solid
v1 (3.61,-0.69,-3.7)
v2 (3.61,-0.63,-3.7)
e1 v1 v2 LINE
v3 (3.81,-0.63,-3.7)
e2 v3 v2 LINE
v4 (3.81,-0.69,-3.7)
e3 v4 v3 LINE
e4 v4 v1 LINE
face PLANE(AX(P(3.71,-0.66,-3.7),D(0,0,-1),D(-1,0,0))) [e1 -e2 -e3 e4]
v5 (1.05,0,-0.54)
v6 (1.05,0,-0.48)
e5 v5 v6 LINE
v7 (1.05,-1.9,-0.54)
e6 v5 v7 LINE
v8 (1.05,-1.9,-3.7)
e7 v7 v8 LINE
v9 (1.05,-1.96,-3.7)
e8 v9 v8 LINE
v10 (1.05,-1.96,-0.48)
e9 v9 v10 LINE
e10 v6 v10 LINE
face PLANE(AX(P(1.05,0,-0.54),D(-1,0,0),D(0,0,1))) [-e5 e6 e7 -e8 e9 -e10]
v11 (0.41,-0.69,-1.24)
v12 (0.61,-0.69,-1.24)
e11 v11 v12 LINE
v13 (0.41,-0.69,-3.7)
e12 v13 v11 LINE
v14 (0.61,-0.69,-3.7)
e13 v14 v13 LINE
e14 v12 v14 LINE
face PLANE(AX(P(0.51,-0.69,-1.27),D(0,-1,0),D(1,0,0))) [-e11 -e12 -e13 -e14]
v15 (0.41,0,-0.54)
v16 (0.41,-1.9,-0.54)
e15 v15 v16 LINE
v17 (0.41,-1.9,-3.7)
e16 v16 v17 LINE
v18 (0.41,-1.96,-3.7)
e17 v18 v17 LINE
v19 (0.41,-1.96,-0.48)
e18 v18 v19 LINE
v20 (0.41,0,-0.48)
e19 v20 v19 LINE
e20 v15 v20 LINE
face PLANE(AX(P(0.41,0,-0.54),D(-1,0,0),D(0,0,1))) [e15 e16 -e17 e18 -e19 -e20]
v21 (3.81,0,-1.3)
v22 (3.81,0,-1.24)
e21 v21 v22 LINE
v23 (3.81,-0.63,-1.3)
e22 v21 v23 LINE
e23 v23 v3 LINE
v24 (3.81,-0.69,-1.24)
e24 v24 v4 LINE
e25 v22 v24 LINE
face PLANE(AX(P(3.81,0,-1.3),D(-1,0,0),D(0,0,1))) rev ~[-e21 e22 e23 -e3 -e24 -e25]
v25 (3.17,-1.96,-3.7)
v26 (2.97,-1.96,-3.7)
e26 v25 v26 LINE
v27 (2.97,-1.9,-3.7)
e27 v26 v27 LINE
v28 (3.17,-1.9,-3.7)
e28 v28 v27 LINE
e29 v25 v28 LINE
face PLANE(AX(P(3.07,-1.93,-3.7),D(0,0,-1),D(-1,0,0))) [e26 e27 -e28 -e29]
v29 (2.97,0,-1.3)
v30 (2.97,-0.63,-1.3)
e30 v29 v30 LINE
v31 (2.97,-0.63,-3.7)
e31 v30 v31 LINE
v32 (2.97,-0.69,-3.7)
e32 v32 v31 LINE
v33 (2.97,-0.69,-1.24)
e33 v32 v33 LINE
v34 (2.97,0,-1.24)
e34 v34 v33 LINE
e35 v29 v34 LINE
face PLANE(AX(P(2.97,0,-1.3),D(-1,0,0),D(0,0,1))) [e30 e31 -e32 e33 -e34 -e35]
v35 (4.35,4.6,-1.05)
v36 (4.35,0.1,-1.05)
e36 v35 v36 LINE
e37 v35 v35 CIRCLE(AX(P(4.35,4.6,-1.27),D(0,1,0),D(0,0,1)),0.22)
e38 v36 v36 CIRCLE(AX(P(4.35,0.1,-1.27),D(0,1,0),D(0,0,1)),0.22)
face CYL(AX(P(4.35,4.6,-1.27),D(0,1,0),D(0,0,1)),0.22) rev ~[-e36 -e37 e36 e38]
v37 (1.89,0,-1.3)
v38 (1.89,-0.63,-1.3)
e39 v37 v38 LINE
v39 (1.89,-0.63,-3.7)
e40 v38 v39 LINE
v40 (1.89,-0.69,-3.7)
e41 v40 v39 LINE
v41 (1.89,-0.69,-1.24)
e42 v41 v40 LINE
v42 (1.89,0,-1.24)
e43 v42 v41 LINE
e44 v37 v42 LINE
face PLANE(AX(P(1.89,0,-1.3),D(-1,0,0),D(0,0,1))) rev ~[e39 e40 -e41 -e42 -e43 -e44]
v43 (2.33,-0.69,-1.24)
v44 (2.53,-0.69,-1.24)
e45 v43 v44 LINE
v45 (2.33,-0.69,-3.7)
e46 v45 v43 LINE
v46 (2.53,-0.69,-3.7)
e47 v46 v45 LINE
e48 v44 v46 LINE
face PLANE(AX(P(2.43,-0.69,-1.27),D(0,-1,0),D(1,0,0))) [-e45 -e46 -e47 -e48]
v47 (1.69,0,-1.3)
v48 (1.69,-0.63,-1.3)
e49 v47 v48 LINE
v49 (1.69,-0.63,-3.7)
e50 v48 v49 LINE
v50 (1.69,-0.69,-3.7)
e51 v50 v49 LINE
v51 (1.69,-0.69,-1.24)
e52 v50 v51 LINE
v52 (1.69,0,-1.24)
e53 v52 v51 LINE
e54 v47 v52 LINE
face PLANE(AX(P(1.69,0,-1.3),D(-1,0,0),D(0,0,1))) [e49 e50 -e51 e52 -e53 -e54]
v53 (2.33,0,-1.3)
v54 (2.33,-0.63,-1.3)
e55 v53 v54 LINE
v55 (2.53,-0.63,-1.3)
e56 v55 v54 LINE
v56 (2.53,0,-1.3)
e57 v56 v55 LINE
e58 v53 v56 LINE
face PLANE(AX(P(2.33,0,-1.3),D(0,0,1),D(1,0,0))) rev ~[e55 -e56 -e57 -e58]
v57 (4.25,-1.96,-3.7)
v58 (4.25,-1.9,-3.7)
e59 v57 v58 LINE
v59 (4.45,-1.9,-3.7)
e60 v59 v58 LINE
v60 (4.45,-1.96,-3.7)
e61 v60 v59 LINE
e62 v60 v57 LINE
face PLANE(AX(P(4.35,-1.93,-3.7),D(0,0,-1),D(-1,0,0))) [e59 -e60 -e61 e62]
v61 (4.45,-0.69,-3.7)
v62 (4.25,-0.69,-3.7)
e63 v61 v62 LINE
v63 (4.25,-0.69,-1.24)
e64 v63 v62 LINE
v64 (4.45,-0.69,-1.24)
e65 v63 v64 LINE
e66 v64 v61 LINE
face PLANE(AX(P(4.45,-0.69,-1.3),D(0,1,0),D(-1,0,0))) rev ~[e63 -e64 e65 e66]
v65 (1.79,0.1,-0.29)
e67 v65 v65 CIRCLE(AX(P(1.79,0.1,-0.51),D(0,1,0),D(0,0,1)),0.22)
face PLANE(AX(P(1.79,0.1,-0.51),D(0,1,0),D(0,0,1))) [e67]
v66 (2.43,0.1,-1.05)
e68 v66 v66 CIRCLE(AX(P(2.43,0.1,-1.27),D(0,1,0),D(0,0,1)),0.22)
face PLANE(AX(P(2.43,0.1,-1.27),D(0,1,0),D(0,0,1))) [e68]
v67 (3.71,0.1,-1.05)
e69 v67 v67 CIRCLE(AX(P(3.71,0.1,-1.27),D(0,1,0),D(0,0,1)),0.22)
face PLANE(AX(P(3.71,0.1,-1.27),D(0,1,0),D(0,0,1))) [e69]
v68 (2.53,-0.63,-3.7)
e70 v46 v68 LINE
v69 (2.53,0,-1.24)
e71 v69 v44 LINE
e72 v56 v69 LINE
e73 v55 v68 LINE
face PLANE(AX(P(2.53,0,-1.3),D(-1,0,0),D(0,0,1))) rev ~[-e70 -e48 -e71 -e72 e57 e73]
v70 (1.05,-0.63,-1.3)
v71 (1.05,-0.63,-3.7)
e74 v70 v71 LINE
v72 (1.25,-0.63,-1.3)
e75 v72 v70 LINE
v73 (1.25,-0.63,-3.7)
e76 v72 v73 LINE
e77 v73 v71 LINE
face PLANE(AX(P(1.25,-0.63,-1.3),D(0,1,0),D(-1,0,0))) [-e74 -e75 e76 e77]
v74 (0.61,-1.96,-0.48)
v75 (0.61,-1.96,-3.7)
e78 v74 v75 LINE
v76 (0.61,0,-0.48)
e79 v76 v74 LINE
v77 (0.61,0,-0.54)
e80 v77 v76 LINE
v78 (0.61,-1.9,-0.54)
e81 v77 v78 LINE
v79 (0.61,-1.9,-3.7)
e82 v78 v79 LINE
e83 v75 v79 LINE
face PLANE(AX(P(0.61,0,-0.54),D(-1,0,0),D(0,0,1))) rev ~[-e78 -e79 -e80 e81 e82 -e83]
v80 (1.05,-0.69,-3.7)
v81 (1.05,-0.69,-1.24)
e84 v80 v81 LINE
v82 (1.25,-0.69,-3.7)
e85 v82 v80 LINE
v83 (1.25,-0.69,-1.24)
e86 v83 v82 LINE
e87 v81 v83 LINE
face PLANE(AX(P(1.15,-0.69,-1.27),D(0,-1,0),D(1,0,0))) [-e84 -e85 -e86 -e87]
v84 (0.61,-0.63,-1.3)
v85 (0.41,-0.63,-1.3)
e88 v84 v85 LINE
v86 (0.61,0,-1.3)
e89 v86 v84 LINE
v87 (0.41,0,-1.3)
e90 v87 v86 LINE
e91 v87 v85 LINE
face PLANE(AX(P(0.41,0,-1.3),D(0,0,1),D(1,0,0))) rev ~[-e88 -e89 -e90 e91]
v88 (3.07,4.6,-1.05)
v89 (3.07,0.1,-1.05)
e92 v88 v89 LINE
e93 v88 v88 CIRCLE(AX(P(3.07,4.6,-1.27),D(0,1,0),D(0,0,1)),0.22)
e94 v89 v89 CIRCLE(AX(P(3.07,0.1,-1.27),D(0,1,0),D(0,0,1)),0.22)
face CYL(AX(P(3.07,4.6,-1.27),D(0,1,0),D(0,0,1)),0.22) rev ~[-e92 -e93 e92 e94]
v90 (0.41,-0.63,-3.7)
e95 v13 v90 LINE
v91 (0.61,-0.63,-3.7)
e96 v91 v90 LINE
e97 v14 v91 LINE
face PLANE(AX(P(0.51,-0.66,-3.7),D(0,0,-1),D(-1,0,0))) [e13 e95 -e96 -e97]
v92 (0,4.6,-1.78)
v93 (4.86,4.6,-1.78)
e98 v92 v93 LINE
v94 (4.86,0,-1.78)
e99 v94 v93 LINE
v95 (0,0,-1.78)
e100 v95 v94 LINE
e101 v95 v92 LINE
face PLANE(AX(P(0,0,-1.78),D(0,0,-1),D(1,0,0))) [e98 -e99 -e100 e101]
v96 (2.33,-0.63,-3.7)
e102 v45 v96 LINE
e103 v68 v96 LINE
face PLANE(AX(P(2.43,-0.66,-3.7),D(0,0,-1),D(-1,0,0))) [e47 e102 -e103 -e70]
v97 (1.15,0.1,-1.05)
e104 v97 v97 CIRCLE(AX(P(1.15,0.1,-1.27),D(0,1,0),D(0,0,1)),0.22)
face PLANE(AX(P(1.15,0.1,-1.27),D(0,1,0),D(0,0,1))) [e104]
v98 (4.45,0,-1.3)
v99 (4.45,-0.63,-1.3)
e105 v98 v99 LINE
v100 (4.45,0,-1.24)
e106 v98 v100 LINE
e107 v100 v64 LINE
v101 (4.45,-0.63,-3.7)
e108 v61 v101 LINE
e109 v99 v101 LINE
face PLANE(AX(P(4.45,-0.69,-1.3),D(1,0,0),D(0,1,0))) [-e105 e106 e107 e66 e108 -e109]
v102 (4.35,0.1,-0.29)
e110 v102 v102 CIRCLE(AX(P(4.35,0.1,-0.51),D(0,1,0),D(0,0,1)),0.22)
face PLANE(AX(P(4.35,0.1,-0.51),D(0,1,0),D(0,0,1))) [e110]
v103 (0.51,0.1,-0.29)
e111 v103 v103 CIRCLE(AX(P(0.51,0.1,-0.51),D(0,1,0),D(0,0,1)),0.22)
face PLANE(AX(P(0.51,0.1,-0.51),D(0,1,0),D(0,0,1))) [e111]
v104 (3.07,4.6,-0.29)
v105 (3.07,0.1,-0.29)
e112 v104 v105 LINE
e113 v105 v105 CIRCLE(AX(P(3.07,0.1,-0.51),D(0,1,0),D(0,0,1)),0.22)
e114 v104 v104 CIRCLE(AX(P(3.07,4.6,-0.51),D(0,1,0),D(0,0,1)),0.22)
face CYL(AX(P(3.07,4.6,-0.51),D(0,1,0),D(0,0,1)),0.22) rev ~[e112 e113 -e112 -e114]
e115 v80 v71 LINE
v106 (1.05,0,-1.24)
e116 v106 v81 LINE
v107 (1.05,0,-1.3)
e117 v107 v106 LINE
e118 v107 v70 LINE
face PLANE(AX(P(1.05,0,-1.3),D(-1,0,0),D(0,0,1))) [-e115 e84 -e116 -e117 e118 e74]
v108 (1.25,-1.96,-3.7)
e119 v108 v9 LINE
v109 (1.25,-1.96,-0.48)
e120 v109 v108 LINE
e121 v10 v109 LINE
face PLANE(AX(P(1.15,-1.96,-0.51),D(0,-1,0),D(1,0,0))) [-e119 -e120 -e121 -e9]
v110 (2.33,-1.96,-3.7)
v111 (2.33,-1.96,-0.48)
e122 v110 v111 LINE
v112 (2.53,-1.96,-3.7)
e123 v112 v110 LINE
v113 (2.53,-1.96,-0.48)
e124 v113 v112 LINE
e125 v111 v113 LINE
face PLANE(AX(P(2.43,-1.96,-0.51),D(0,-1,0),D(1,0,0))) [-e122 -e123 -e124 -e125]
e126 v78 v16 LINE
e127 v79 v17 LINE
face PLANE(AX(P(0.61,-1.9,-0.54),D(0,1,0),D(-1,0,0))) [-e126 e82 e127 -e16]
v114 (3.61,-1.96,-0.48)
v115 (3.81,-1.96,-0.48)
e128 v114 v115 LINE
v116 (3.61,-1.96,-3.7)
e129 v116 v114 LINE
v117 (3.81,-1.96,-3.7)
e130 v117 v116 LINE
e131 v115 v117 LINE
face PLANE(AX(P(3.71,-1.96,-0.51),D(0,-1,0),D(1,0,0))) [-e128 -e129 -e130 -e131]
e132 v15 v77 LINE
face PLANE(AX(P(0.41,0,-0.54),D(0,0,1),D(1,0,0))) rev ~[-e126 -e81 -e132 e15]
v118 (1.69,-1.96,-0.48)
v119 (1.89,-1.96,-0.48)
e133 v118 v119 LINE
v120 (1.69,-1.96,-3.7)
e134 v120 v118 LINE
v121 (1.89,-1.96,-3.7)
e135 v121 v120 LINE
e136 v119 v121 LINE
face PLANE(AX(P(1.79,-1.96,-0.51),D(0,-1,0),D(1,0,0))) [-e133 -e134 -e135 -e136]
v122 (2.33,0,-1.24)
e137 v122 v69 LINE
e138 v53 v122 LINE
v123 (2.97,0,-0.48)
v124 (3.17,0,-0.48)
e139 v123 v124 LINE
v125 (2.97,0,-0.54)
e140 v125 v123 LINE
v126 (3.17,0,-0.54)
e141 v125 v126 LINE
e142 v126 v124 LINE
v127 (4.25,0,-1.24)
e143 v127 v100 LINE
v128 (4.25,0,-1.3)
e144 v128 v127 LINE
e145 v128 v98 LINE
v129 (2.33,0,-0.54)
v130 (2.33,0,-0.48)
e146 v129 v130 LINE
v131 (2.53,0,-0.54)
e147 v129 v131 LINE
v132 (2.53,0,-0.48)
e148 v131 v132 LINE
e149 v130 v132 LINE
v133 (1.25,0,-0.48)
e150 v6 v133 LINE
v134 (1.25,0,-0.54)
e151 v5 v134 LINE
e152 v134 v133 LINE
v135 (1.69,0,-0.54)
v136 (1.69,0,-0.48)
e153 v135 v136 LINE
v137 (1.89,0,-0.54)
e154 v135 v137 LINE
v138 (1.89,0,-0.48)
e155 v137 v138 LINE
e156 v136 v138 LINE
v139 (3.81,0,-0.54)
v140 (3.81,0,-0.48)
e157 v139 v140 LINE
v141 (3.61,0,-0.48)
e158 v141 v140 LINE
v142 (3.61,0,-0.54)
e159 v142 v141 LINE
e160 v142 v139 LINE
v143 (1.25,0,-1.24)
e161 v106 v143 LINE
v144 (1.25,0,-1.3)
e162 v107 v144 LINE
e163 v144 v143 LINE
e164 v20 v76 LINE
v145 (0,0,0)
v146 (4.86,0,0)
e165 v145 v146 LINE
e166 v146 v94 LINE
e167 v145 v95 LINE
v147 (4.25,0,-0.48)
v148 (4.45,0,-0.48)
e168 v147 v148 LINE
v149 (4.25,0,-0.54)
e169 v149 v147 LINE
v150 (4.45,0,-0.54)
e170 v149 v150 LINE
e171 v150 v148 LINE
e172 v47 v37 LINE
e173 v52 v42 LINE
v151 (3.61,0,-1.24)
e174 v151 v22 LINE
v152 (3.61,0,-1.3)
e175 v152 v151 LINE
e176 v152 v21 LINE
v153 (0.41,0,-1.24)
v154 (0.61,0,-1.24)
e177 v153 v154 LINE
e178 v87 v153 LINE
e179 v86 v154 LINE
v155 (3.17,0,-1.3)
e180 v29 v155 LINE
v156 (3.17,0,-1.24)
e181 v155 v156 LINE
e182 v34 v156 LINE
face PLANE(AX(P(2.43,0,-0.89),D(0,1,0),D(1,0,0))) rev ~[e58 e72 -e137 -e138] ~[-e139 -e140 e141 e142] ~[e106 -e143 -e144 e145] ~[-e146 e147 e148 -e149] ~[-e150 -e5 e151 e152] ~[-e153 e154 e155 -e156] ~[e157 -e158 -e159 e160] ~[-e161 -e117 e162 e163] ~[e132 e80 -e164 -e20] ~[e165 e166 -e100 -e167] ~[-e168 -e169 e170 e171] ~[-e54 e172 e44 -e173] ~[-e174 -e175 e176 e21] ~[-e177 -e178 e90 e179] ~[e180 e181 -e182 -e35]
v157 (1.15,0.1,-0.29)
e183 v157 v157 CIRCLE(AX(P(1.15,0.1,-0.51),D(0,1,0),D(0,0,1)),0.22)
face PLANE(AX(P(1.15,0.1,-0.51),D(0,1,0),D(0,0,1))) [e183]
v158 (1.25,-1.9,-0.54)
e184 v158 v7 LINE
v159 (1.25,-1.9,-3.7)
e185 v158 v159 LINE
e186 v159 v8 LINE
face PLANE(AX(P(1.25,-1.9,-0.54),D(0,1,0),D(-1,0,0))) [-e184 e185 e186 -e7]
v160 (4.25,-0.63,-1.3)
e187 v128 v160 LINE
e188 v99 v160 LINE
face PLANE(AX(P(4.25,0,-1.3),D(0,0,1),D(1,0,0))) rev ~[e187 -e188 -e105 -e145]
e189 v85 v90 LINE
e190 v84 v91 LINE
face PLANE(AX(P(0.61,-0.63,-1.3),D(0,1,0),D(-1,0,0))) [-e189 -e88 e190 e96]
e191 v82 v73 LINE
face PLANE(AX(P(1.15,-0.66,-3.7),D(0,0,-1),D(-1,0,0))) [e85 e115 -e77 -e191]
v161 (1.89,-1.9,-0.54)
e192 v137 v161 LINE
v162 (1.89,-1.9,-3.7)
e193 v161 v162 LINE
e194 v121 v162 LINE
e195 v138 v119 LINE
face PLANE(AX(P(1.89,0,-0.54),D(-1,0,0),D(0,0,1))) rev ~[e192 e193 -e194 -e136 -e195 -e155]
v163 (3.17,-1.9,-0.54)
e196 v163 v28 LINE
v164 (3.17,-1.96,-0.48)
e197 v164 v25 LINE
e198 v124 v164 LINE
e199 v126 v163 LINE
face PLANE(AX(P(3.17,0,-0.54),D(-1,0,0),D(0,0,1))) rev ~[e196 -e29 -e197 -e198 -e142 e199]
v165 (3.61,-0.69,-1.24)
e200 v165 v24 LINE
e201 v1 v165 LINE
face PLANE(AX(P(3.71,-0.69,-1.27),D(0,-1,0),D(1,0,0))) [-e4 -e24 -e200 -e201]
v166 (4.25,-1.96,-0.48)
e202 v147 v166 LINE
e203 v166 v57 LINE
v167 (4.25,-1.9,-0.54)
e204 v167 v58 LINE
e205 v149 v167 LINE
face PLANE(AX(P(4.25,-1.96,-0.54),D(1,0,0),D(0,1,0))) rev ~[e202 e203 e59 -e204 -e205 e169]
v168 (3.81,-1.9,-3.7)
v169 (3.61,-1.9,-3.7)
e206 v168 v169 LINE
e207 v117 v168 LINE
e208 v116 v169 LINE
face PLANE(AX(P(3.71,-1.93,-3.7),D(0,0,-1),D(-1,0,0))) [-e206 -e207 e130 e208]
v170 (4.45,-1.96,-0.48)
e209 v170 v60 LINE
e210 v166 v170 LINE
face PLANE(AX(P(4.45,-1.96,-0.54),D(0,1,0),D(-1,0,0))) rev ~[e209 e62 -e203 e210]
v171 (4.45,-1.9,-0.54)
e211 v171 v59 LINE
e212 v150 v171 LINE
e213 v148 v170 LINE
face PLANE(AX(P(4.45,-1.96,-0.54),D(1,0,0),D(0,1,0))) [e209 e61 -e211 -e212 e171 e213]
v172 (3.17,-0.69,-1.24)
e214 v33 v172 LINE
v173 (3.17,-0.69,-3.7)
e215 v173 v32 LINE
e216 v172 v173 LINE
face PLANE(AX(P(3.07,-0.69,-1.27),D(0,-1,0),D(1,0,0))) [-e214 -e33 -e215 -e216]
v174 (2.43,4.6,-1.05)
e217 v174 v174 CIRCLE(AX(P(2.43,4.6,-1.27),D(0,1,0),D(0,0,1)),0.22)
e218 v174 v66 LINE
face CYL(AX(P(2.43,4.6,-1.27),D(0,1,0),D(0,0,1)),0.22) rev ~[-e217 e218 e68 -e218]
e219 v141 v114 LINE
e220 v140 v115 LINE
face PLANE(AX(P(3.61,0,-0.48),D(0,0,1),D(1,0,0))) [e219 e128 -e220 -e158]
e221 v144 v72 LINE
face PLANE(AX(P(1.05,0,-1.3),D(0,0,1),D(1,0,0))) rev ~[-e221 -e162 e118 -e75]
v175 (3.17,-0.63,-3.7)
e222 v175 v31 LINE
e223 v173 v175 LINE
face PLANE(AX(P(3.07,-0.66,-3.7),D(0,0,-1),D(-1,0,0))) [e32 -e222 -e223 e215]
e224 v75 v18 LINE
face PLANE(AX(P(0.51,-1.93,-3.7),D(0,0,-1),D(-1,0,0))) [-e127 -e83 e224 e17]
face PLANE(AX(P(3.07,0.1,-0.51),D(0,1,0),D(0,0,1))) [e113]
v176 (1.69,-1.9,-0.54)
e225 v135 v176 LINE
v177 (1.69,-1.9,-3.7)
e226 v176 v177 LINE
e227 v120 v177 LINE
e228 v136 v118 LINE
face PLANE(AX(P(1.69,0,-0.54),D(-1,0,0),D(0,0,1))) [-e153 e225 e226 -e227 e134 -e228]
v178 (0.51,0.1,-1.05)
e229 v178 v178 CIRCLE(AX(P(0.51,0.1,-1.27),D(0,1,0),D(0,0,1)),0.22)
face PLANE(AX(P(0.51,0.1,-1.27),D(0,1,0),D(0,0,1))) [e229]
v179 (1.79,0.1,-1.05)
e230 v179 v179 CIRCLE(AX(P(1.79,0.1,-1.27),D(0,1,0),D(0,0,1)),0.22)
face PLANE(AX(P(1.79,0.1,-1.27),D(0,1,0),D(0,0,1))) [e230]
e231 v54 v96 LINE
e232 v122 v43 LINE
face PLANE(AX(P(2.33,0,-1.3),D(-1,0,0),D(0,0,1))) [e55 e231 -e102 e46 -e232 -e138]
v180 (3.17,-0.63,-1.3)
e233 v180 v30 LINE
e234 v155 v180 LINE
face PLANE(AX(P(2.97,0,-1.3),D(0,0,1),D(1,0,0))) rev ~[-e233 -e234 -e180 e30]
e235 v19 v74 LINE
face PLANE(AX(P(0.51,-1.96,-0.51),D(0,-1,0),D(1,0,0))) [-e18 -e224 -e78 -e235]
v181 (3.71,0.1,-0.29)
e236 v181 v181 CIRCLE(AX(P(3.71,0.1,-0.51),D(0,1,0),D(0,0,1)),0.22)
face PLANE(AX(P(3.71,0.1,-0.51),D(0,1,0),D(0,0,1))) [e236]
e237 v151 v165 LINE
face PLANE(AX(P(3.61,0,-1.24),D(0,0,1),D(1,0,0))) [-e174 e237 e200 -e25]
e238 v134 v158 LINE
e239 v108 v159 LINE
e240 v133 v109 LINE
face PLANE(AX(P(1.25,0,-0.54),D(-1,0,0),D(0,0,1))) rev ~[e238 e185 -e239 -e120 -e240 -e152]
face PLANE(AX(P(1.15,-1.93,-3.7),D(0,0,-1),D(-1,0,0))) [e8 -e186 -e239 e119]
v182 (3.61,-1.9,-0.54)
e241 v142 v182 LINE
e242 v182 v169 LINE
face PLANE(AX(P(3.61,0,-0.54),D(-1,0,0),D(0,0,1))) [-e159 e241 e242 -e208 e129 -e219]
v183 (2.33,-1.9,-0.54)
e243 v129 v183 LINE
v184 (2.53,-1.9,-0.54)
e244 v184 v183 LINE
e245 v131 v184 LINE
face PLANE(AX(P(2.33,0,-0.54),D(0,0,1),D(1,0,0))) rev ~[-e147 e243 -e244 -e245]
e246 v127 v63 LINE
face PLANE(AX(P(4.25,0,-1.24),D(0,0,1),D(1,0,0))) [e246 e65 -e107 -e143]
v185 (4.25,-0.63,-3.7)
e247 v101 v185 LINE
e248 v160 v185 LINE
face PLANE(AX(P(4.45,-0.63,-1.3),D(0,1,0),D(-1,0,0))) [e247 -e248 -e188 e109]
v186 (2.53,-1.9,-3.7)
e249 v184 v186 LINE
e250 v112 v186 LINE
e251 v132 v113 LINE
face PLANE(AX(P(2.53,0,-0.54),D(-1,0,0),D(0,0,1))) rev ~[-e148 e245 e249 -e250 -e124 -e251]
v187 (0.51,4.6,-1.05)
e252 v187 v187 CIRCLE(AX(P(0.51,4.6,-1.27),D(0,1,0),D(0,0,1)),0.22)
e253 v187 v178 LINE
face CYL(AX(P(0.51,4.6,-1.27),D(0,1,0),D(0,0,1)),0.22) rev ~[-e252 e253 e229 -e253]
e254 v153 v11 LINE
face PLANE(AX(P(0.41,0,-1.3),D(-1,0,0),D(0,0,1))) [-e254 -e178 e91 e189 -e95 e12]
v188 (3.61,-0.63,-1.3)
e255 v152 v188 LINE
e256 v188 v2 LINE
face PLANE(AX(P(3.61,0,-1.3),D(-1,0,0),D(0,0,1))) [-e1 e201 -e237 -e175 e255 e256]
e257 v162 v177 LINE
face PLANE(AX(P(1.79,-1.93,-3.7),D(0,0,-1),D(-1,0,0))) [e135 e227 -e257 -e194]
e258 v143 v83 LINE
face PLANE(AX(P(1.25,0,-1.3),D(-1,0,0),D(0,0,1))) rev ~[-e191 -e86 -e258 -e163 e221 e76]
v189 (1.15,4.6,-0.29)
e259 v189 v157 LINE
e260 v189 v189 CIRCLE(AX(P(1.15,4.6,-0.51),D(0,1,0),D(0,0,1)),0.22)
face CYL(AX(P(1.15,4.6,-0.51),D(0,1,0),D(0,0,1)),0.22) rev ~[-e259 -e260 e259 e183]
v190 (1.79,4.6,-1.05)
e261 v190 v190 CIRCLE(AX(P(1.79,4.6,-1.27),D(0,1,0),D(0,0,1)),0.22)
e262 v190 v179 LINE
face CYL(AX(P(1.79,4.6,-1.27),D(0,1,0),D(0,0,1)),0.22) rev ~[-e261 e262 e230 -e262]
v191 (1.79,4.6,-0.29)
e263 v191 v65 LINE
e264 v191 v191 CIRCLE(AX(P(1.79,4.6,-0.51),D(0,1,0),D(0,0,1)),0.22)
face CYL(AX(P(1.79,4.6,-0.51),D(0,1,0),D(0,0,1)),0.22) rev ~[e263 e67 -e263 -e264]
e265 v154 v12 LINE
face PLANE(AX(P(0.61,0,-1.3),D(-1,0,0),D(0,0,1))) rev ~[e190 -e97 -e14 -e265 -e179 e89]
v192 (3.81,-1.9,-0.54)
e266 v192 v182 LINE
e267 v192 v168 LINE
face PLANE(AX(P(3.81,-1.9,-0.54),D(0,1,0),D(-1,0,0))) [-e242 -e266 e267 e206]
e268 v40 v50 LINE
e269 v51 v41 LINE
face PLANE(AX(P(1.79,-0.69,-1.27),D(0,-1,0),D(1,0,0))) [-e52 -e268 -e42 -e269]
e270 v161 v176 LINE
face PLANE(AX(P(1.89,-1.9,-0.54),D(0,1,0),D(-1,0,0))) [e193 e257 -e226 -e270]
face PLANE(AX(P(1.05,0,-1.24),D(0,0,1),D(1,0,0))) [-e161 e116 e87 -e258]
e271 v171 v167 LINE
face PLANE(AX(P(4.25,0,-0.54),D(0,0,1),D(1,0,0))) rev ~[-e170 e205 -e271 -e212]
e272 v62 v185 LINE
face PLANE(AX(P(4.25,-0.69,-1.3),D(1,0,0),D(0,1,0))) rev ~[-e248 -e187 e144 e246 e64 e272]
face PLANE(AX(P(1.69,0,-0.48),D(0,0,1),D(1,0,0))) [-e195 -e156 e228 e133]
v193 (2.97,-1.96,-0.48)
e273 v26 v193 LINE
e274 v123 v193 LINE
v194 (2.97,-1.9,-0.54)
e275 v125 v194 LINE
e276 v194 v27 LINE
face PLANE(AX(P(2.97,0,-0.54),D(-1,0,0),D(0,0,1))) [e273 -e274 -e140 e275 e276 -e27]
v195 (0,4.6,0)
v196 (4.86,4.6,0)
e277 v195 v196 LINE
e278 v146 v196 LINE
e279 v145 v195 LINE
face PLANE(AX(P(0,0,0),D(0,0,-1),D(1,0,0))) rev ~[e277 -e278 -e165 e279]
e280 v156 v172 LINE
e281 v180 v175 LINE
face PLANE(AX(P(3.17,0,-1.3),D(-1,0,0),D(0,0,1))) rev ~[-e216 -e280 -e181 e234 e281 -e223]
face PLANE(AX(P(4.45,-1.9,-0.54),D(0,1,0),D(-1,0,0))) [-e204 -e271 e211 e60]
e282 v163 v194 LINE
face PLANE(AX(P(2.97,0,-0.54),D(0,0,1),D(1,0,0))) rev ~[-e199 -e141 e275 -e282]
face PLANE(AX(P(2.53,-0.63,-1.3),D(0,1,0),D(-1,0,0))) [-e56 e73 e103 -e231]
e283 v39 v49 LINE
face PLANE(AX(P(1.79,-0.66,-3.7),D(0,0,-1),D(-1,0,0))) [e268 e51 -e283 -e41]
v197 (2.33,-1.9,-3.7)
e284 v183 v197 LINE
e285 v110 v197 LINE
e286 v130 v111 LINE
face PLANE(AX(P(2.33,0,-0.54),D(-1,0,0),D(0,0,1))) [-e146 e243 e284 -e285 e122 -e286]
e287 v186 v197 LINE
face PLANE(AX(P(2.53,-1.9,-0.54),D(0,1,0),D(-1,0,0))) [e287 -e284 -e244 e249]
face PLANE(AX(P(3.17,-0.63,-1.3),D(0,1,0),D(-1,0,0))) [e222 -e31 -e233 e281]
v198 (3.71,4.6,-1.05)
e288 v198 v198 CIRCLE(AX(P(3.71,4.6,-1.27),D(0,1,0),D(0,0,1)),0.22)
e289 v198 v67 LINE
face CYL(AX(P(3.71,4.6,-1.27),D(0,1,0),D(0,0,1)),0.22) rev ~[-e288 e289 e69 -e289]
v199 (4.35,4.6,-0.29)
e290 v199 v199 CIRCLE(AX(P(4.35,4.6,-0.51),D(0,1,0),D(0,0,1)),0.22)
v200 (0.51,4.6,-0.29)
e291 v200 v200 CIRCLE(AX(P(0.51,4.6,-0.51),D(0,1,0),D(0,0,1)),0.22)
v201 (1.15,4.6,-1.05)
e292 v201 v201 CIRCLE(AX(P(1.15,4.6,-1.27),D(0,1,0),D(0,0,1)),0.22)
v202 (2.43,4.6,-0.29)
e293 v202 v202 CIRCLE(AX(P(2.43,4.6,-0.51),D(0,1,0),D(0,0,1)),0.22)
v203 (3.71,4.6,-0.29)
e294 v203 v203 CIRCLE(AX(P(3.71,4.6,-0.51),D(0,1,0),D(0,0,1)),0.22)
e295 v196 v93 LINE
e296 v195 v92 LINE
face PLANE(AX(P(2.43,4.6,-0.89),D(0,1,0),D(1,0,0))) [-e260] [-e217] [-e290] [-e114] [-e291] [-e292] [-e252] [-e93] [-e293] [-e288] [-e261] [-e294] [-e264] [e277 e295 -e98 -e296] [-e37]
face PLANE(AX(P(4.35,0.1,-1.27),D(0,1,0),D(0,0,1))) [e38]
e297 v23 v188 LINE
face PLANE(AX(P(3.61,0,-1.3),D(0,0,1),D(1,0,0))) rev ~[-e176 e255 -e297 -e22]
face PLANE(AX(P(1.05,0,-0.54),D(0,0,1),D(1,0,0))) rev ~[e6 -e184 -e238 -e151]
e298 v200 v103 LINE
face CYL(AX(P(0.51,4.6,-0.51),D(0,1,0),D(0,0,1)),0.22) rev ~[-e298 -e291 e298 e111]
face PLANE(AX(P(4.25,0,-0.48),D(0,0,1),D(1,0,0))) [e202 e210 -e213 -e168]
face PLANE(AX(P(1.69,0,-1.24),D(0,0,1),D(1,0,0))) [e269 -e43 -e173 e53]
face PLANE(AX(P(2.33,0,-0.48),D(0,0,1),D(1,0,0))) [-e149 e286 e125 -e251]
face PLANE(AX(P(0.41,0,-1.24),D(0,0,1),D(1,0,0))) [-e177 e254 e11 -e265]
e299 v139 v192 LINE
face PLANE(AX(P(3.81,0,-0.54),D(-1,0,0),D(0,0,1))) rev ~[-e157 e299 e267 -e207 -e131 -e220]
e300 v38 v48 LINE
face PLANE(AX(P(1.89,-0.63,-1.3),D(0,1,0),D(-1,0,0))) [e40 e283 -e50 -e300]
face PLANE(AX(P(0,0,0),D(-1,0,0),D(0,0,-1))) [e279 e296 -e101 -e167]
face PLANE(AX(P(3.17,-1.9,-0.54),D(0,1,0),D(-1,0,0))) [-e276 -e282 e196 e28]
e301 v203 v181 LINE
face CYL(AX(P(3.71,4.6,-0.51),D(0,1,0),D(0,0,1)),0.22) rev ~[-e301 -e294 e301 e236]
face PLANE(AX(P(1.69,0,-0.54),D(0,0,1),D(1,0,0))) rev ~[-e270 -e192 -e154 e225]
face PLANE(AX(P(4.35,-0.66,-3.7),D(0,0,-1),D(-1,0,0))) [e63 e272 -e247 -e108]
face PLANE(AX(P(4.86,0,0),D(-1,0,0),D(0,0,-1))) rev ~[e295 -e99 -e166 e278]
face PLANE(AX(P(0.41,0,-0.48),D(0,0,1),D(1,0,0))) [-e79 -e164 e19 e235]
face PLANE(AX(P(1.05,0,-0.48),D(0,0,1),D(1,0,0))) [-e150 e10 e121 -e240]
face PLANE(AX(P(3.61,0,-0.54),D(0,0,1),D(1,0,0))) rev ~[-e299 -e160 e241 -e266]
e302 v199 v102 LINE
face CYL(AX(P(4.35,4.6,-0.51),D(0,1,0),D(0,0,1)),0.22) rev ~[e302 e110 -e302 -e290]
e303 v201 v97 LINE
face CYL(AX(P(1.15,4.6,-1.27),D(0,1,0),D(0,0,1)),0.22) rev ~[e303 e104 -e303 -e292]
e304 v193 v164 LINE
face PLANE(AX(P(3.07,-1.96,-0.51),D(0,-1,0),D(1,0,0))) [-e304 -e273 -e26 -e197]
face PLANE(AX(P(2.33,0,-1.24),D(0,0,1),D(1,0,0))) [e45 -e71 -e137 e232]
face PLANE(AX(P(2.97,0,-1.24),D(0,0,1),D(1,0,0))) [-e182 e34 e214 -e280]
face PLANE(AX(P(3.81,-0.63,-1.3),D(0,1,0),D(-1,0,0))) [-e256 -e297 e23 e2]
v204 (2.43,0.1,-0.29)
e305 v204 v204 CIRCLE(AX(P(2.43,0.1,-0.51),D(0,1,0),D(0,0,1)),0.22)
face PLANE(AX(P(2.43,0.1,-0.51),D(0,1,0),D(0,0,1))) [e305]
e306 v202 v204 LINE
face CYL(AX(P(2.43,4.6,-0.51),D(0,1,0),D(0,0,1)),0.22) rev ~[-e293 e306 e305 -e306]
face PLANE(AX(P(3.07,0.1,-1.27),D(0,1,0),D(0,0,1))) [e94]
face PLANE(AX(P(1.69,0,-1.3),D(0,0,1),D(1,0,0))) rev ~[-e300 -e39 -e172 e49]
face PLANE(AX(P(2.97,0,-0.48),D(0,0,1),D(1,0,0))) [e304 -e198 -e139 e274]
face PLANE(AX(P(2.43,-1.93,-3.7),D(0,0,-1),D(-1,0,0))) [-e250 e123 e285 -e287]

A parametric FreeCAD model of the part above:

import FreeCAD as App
import Part
import Sketcher

V = App.Vector


def add_polygon(sketch, points):
    """Adds a closed chain of lines whose ends are joined by coincident constraints."""
    first, n = sketch.GeometryCount, len(points)
    for a, b in zip(points, points[1:] + points[:1]):
        sketch.addGeometry(Part.LineSegment(App.Vector(*a, 0), App.Vector(*b, 0)), False)
    for i in range(n):
        sketch.addConstraint(Sketcher.Constraint("Coincident", first + i, 2, first + (i + 1) % n, 1))

doc = App.newDocument("Part")
params = doc.addObject("Spreadsheet::Sheet", "Params")
for row, (alias, value) in enumerate([
    ("sketch1_width", "4.86 mm"),
    ("sketch1_height", "1.78 mm"),
    ("pad1_length", "4.6 mm"),
    ("sketch2_diameter", "0.44 mm"),
    ("pocket1_length", "4.5 mm"),
    ("sketch3_width", "0.2 mm"),
    ("sketch3_height", "0.06 mm"),
    ("pad2_length", "1.96 mm"),
    ("sketch4_width", "0.2 mm"),
    ("sketch4_height", "0.06 mm"),
    ("pad3_length", "0.69 mm"),
    ("sketch5_width", "0.2 mm"),
    ("sketch5_height", "0.06 mm"),
    ("pad4_length", "2.4 mm"),
    ("sketch6_width", "0.2 mm"),
    ("sketch6_height", "0.06 mm"),
    ("pad5_length", "3.16 mm"),
], start=1):
    params.set(f"A{row}", alias)
    params.set(f"B{row}", "=" + value)
    params.setAlias(f"B{row}", alias)

body = doc.addObject("PartDesign::Body", "Body")

# Sketch on XZ plane
sketch1 = doc.addObject("Sketcher::SketchObject", "Sketch")
body.addObject(sketch1)
sketch1.AttachmentSupport = (doc.XZ_Plane, [""])
sketch1.MapMode = "FlatFace"
add_polygon(sketch1, [(0, -1.8), (0, 0), (4.9, 0), (4.9, -1.8)])  # lines 0-3
sketch1.addConstraint(Sketcher.Constraint("Vertical", 0))
sketch1.addConstraint(Sketcher.Constraint("Horizontal", 1))
sketch1.addConstraint(Sketcher.Constraint("Vertical", 2))
sketch1.addConstraint(Sketcher.Constraint("Horizontal", 3))
sketch1.addConstraint(Sketcher.Constraint("Coincident", 0, 2, -1, 1))
sketch1.addConstraint(Sketcher.Constraint("DistanceX", 1, 1, 1, 2, 4.86))
sketch1.addConstraint(Sketcher.Constraint("DistanceY", 0, 1, 0, 2, 1.78))
sketch1.setExpression("Constraints[9]", "Params.sketch1_width")
sketch1.setExpression("Constraints[10]", "Params.sketch1_height")
pad1 = doc.addObject("PartDesign::Pad", "Pad")
body.addObject(pad1)
pad1.Profile = sketch1
pad1.setExpression("Length", "Params.pad1_length")
pad1.Reversed = True

# Sketch on XZ plane
sketch2 = doc.addObject("Sketcher::SketchObject", "Sketch001")
body.addObject(sketch2)
sketch2.AttachmentSupport = (doc.XZ_Plane, [""])
sketch2.MapMode = "FlatFace"
sketch2.AttachmentOffset = App.Placement(V(0, 0, -4.6), App.Rotation())
sketch2.addGeometry(Part.Circle(V(0.51, -1.27, 0), V(0, 0, 1), 0.22), False)
sketch2.addGeometry(Part.Circle(V(1.15, -1.27, 0), V(0, 0, 1), 0.22), False)
sketch2.addGeometry(Part.Circle(V(1.79, -1.27, 0), V(0, 0, 1), 0.22), False)
sketch2.addGeometry(Part.Circle(V(2.43, -1.27, 0), V(0, 0, 1), 0.22), False)
sketch2.addGeometry(Part.Circle(V(3.07, -1.27, 0), V(0, 0, 1), 0.22), False)
sketch2.addGeometry(Part.Circle(V(3.71, -1.27, 0), V(0, 0, 1), 0.22), False)
sketch2.addGeometry(Part.Circle(V(4.35, -1.27, 0), V(0, 0, 1), 0.22), False)
sketch2.addGeometry(Part.Circle(V(1.15, -0.51, 0), V(0, 0, 1), 0.22), False)
sketch2.addGeometry(Part.Circle(V(1.79, -0.51, 0), V(0, 0, 1), 0.22), False)
sketch2.addGeometry(Part.Circle(V(2.43, -0.51, 0), V(0, 0, 1), 0.22), False)
sketch2.addGeometry(Part.Circle(V(3.07, -0.51, 0), V(0, 0, 1), 0.22), False)
sketch2.addGeometry(Part.Circle(V(3.71, -0.51, 0), V(0, 0, 1), 0.22), False)
sketch2.addGeometry(Part.Circle(V(4.35, -0.51, 0), V(0, 0, 1), 0.22), False)
sketch2.addGeometry(Part.Circle(V(0.51, -0.51, 0), V(0, 0, 1), 0.22), False)
sketch2.addConstraint(Sketcher.Constraint("Equal", 0, 1))
sketch2.addConstraint(Sketcher.Constraint("Equal", 1, 2))
sketch2.addConstraint(Sketcher.Constraint("Equal", 2, 3))
sketch2.addConstraint(Sketcher.Constraint("Equal", 3, 4))
sketch2.addConstraint(Sketcher.Constraint("Equal", 4, 5))
sketch2.addConstraint(Sketcher.Constraint("Equal", 5, 6))
sketch2.addConstraint(Sketcher.Constraint("Equal", 6, 7))
sketch2.addConstraint(Sketcher.Constraint("Equal", 7, 8))
sketch2.addConstraint(Sketcher.Constraint("Equal", 8, 9))
sketch2.addConstraint(Sketcher.Constraint("Equal", 9, 10))
sketch2.addConstraint(Sketcher.Constraint("Equal", 10, 11))
sketch2.addConstraint(Sketcher.Constraint("Equal", 11, 12))
sketch2.addConstraint(Sketcher.Constraint("Equal", 12, 13))
sketch2.addConstraint(Sketcher.Constraint("Horizontal", 0, 3, 1, 3))
sketch2.addConstraint(Sketcher.Constraint("Horizontal", 1, 3, 2, 3))
sketch2.addConstraint(Sketcher.Constraint("Horizontal", 2, 3, 3, 3))
sketch2.addConstraint(Sketcher.Constraint("Horizontal", 3, 3, 4, 3))
sketch2.addConstraint(Sketcher.Constraint("Horizontal", 4, 3, 5, 3))
sketch2.addConstraint(Sketcher.Constraint("Horizontal", 5, 3, 6, 3))
sketch2.addConstraint(Sketcher.Constraint("Horizontal", 7, 3, 8, 3))
sketch2.addConstraint(Sketcher.Constraint("Horizontal", 8, 3, 9, 3))
sketch2.addConstraint(Sketcher.Constraint("Horizontal", 9, 3, 10, 3))
sketch2.addConstraint(Sketcher.Constraint("Horizontal", 10, 3, 11, 3))
sketch2.addConstraint(Sketcher.Constraint("Horizontal", 11, 3, 12, 3))
sketch2.addConstraint(Sketcher.Constraint("Horizontal", 12, 3, 13, 3))
sketch2.addConstraint(Sketcher.Constraint("Vertical", 1, 3, 7, 3))
sketch2.addConstraint(Sketcher.Constraint("Vertical", 2, 3, 8, 3))
sketch2.addConstraint(Sketcher.Constraint("Vertical", 3, 3, 9, 3))
sketch2.addConstraint(Sketcher.Constraint("Vertical", 4, 3, 10, 3))
sketch2.addConstraint(Sketcher.Constraint("Vertical", 5, 3, 11, 3))
sketch2.addConstraint(Sketcher.Constraint("Vertical", 6, 3, 12, 3))
sketch2.addConstraint(Sketcher.Constraint("Vertical", 0, 3, 13, 3))
sketch2.addConstraint(Sketcher.Constraint("Diameter", 0, 0.44))
sketch2.addConstraint(Sketcher.Constraint("DistanceX", 0, 3, 5, 3, 3.2))
sketch2.addConstraint(Sketcher.Constraint("DistanceX", 1, 3, 6, 3, 3.2))
sketch2.addConstraint(Sketcher.Constraint("DistanceX", -1, 1, 0, 3, 0.51))
sketch2.addConstraint(Sketcher.Constraint("DistanceY", 0, 3, -1, 1, 1.27))
sketch2.addConstraint(Sketcher.Constraint("DistanceX", -1, 1, 1, 3, 1.15))
sketch2.addConstraint(Sketcher.Constraint("DistanceX", -1, 1, 2, 3, 1.79))
sketch2.addConstraint(Sketcher.Constraint("DistanceX", -1, 1, 3, 3, 2.43))
sketch2.addConstraint(Sketcher.Constraint("DistanceX", -1, 1, 4, 3, 3.07))
sketch2.addConstraint(Sketcher.Constraint("DistanceY", 7, 3, -1, 1, 0.51))
sketch2.setExpression("Constraints[32]", "Params.sketch2_diameter")
pocket1 = doc.addObject("PartDesign::Pocket", "Pocket")
body.addObject(pocket1)
pocket1.Profile = sketch2
pocket1.setExpression("Length", "Params.pocket1_length")
pocket1.Reversed = True

# Sketch on XZ plane
sketch3 = doc.addObject("Sketcher::SketchObject", "Sketch002")
body.addObject(sketch3)
sketch3.AttachmentSupport = (doc.XZ_Plane, [""])
sketch3.MapMode = "FlatFace"
add_polygon(sketch3, [(0.41, -0.48), (0.41, -0.54), (0.61, -0.54), (0.61, -0.48)])  # lines 0-3
add_polygon(sketch3, [(1.05, -0.48), (1.05, -0.54), (1.25, -0.54), (1.25, -0.48)])  # lines 4-7
add_polygon(sketch3, [(1.69, -0.48), (1.69, -0.54), (1.89, -0.54), (1.89, -0.48)])  # lines 8-11
add_polygon(sketch3, [(2.33, -0.48), (2.33, -0.54), (2.53, -0.54), (2.53, -0.48)])  # lines 12-15
add_polygon(sketch3, [(2.97, -0.48), (2.97, -0.54), (3.17, -0.54), (3.17, -0.48)])  # lines 16-19
add_polygon(sketch3, [(3.61, -0.48), (3.61, -0.54), (3.81, -0.54), (3.81, -0.48)])  # lines 20-23
add_polygon(sketch3, [(4.25, -0.48), (4.25, -0.54), (4.45, -0.54), (4.45, -0.48)])  # lines 24-27
sketch3.addConstraint(Sketcher.Constraint("Vertical", 0))
sketch3.addConstraint(Sketcher.Constraint("Horizontal", 1))
sketch3.addConstraint(Sketcher.Constraint("Vertical", 2))
sketch3.addConstraint(Sketcher.Constraint("Horizontal", 3))
sketch3.addConstraint(Sketcher.Constraint("Vertical", 4))
sketch3.addConstraint(Sketcher.Constraint("Horizontal", 5))
sketch3.addConstraint(Sketcher.Constraint("Vertical", 6))
sketch3.addConstraint(Sketcher.Constraint("Horizontal", 7))
sketch3.addConstraint(Sketcher.Constraint("Vertical", 8))
sketch3.addConstraint(Sketcher.Constraint("Horizontal", 9))
sketch3.addConstraint(Sketcher.Constraint("Vertical", 10))
sketch3.addConstraint(Sketcher.Constraint("Horizontal", 11))
sketch3.addConstraint(Sketcher.Constraint("Vertical", 12))
sketch3.addConstraint(Sketcher.Constraint("Horizontal", 13))
sketch3.addConstraint(Sketcher.Constraint("Vertical", 14))
sketch3.addConstraint(Sketcher.Constraint("Horizontal", 15))
sketch3.addConstraint(Sketcher.Constraint("Vertical", 16))
sketch3.addConstraint(Sketcher.Constraint("Horizontal", 17))
sketch3.addConstraint(Sketcher.Constraint("Vertical", 18))
sketch3.addConstraint(Sketcher.Constraint("Horizontal", 19))
sketch3.addConstraint(Sketcher.Constraint("Vertical", 20))
sketch3.addConstraint(Sketcher.Constraint("Horizontal", 21))
sketch3.addConstraint(Sketcher.Constraint("Vertical", 22))
sketch3.addConstraint(Sketcher.Constraint("Horizontal", 23))
sketch3.addConstraint(Sketcher.Constraint("Vertical", 24))
sketch3.addConstraint(Sketcher.Constraint("Horizontal", 25))
sketch3.addConstraint(Sketcher.Constraint("Vertical", 26))
sketch3.addConstraint(Sketcher.Constraint("Horizontal", 27))
sketch3.addConstraint(Sketcher.Constraint("Horizontal", 1, 2, 4, 2))
sketch3.addConstraint(Sketcher.Constraint("Horizontal", 3, 2, 6, 2))
sketch3.addConstraint(Sketcher.Constraint("Horizontal", 5, 2, 8, 2))
sketch3.addConstraint(Sketcher.Constraint("Horizontal", 7, 2, 10, 2))
sketch3.addConstraint(Sketcher.Constraint("Horizontal", 9, 2, 12, 2))
sketch3.addConstraint(Sketcher.Constraint("Horizontal", 11, 2, 14, 2))
sketch3.addConstraint(Sketcher.Constraint("Horizontal", 13, 2, 16, 2))
sketch3.addConstraint(Sketcher.Constraint("Horizontal", 15, 2, 18, 2))
sketch3.addConstraint(Sketcher.Constraint("Horizontal", 17, 2, 20, 2))
sketch3.addConstraint(Sketcher.Constraint("Horizontal", 19, 2, 22, 2))
sketch3.addConstraint(Sketcher.Constraint("Horizontal", 21, 2, 24, 2))
sketch3.addConstraint(Sketcher.Constraint("Horizontal", 23, 2, 26, 2))
sketch3.addConstraint(Sketcher.Constraint("Equal", 3, 5))
sketch3.addConstraint(Sketcher.Constraint("Equal", 7, 9))
sketch3.addConstraint(Sketcher.Constraint("Equal", 11, 13))
sketch3.addConstraint(Sketcher.Constraint("Equal", 15, 17))
sketch3.addConstraint(Sketcher.Constraint("Equal", 19, 21))
sketch3.addConstraint(Sketcher.Constraint("Equal", 23, 25))
sketch3.addConstraint(Sketcher.Constraint("DistanceX", 1, 1, 1, 2, 0.2))
sketch3.addConstraint(Sketcher.Constraint("DistanceY", 0, 2, 0, 1, 0.06))
sketch3.addConstraint(Sketcher.Constraint("DistanceX", -1, 1, 0, 2, 0.41))
sketch3.addConstraint(Sketcher.Constraint("DistanceY", 0, 2, -1, 1, 0.54))
sketch3.addConstraint(Sketcher.Constraint("DistanceX", -1, 1, 4, 2, 1.05))
sketch3.addConstraint(Sketcher.Constraint("DistanceX", -1, 1, 8, 2, 1.69))
sketch3.addConstraint(Sketcher.Constraint("DistanceX", -1, 1, 12, 2, 2.33))
sketch3.addConstraint(Sketcher.Constraint("DistanceX", -1, 1, 16, 2, 2.97))
sketch3.addConstraint(Sketcher.Constraint("DistanceX", -1, 1, 20, 2, 3.61))
sketch3.addConstraint(Sketcher.Constraint("DistanceX", -1, 1, 24, 2, 4.25))
sketch3.setExpression("Constraints[74]", "Params.sketch3_width")
sketch3.setExpression("Constraints[75]", "Params.sketch3_height")
pad2 = doc.addObject("PartDesign::Pad", "Pad001")
body.addObject(pad2)
pad2.Profile = sketch3
pad2.setExpression("Length", "Params.pad2_length")

# Sketch on XZ plane
sketch4 = doc.addObject("Sketcher::SketchObject", "Sketch003")
body.addObject(sketch4)
sketch4.AttachmentSupport = (doc.XZ_Plane, [""])
sketch4.MapMode = "FlatFace"
add_polygon(sketch4, [(0.41, -1.24), (0.41, -1.3), (0.61, -1.3), (0.61, -1.24)])  # lines 0-3
add_polygon(sketch4, [(1.05, -1.24), (1.05, -1.3), (1.25, -1.3), (1.25, -1.24)])  # lines 4-7
add_polygon(sketch4, [(1.69, -1.24), (1.69, -1.3), (1.89, -1.3), (1.89, -1.24)])  # lines 8-11
add_polygon(sketch4, [(2.33, -1.24), (2.33, -1.3), (2.53, -1.3), (2.53, -1.24)])  # lines 12-15
add_polygon(sketch4, [(2.97, -1.24), (2.97, -1.3), (3.17, -1.3), (3.17, -1.24)])  # lines 16-19
add_polygon(sketch4, [(3.61, -1.24), (3.61, -1.3), (3.81, -1.3), (3.81, -1.24)])  # lines 20-23
add_polygon(sketch4, [(4.25, -1.24), (4.25, -1.3), (4.45, -1.3), (4.45, -1.24)])  # lines 24-27
sketch4.addConstraint(Sketcher.Constraint("Vertical", 0))
sketch4.addConstraint(Sketcher.Constraint("Horizontal", 1))
sketch4.addConstraint(Sketcher.Constraint("Vertical", 2))
sketch4.addConstraint(Sketcher.Constraint("Horizontal", 3))
sketch4.addConstraint(Sketcher.Constraint("Vertical", 4))
sketch4.addConstraint(Sketcher.Constraint("Horizontal", 5))
sketch4.addConstraint(Sketcher.Constraint("Vertical", 6))
sketch4.addConstraint(Sketcher.Constraint("Horizontal", 7))
sketch4.addConstraint(Sketcher.Constraint("Vertical", 8))
sketch4.addConstraint(Sketcher.Constraint("Horizontal", 9))
sketch4.addConstraint(Sketcher.Constraint("Vertical", 10))
sketch4.addConstraint(Sketcher.Constraint("Horizontal", 11))
sketch4.addConstraint(Sketcher.Constraint("Vertical", 12))
sketch4.addConstraint(Sketcher.Constraint("Horizontal", 13))
sketch4.addConstraint(Sketcher.Constraint("Vertical", 14))
sketch4.addConstraint(Sketcher.Constraint("Horizontal", 15))
sketch4.addConstraint(Sketcher.Constraint("Vertical", 16))
sketch4.addConstraint(Sketcher.Constraint("Horizontal", 17))
sketch4.addConstraint(Sketcher.Constraint("Vertical", 18))
sketch4.addConstraint(Sketcher.Constraint("Horizontal", 19))
sketch4.addConstraint(Sketcher.Constraint("Vertical", 20))
sketch4.addConstraint(Sketcher.Constraint("Horizontal", 21))
sketch4.addConstraint(Sketcher.Constraint("Vertical", 22))
sketch4.addConstraint(Sketcher.Constraint("Horizontal", 23))
sketch4.addConstraint(Sketcher.Constraint("Vertical", 24))
sketch4.addConstraint(Sketcher.Constraint("Horizontal", 25))
sketch4.addConstraint(Sketcher.Constraint("Vertical", 26))
sketch4.addConstraint(Sketcher.Constraint("Horizontal", 27))
sketch4.addConstraint(Sketcher.Constraint("Horizontal", 1, 2, 4, 2))
sketch4.addConstraint(Sketcher.Constraint("Horizontal", 3, 2, 6, 2))
sketch4.addConstraint(Sketcher.Constraint("Horizontal", 5, 2, 8, 2))
sketch4.addConstraint(Sketcher.Constraint("Horizontal", 7, 2, 10, 2))
sketch4.addConstraint(Sketcher.Constraint("Horizontal", 9, 2, 12, 2))
sketch4.addConstraint(Sketcher.Constraint("Horizontal", 11, 2, 14, 2))
sketch4.addConstraint(Sketcher.Constraint("Horizontal", 13, 2, 16, 2))
sketch4.addConstraint(Sketcher.Constraint("Horizontal", 15, 2, 18, 2))
sketch4.addConstraint(Sketcher.Constraint("Horizontal", 17, 2, 20, 2))
sketch4.addConstraint(Sketcher.Constraint("Horizontal", 19, 2, 22, 2))
sketch4.addConstraint(Sketcher.Constraint("Horizontal", 21, 2, 24, 2))
sketch4.addConstraint(Sketcher.Constraint("Horizontal", 23, 2, 26, 2))
sketch4.addConstraint(Sketcher.Constraint("Equal", 3, 5))
sketch4.addConstraint(Sketcher.Constraint("Equal", 7, 9))
sketch4.addConstraint(Sketcher.Constraint("Equal", 11, 13))
sketch4.addConstraint(Sketcher.Constraint("Equal", 15, 17))
sketch4.addConstraint(Sketcher.Constraint("Equal", 19, 21))
sketch4.addConstraint(Sketcher.Constraint("Equal", 23, 25))
sketch4.addConstraint(Sketcher.Constraint("DistanceX", 1, 1, 1, 2, 0.2))
sketch4.addConstraint(Sketcher.Constraint("DistanceY", 0, 2, 0, 1, 0.06))
sketch4.addConstraint(Sketcher.Constraint("DistanceY", 0, 2, -1, 1, 1.3))
sketch4.addConstraint(Sketcher.Constraint("DistanceX", -1, 1, 0, 2, 0.41))
sketch4.addConstraint(Sketcher.Constraint("DistanceX", -1, 1, 4, 2, 1.05))
sketch4.addConstraint(Sketcher.Constraint("DistanceX", -1, 1, 8, 2, 1.69))
sketch4.addConstraint(Sketcher.Constraint("DistanceX", -1, 1, 12, 2, 2.33))
sketch4.addConstraint(Sketcher.Constraint("DistanceX", -1, 1, 16, 2, 2.97))
sketch4.addConstraint(Sketcher.Constraint("DistanceX", -1, 1, 20, 2, 3.61))
sketch4.addConstraint(Sketcher.Constraint("DistanceX", -1, 1, 24, 2, 4.25))
sketch4.setExpression("Constraints[74]", "Params.sketch4_width")
sketch4.setExpression("Constraints[75]", "Params.sketch4_height")
pad3 = doc.addObject("PartDesign::Pad", "Pad002")
body.addObject(pad3)
pad3.Profile = sketch4
pad3.setExpression("Length", "Params.pad3_length")

# Sketch on XY plane
sketch5 = doc.addObject("Sketcher::SketchObject", "Sketch004")
body.addObject(sketch5)
sketch5.AttachmentSupport = (doc.XY_Plane, [""])
sketch5.MapMode = "FlatFace"
sketch5.AttachmentOffset = App.Placement(V(0, 0, -1.3), App.Rotation())
add_polygon(sketch5, [(4.45, -0.63), (4.45, -0.69), (4.25, -0.69), (4.25, -0.63)])  # lines 0-3
add_polygon(sketch5, [(3.81, -0.63), (3.81, -0.69), (3.61, -0.69), (3.61, -0.63)])  # lines 4-7
add_polygon(sketch5, [(3.17, -0.63), (3.17, -0.69), (2.97, -0.69), (2.97, -0.63)])  # lines 8-11
add_polygon(sketch5, [(2.53, -0.63), (2.53, -0.69), (2.33, -0.69), (2.33, -0.63)])  # lines 12-15
add_polygon(sketch5, [(1.89, -0.63), (1.89, -0.69), (1.69, -0.69), (1.69, -0.63)])  # lines 16-19
add_polygon(sketch5, [(1.25, -0.63), (1.25, -0.69), (1.05, -0.69), (1.05, -0.63)])  # lines 20-23
add_polygon(sketch5, [(0.61, -0.63), (0.61, -0.69), (0.41, -0.69), (0.41, -0.63)])  # lines 24-27
sketch5.addConstraint(Sketcher.Constraint("Vertical", 0))
sketch5.addConstraint(Sketcher.Constraint("Horizontal", 1))
sketch5.addConstraint(Sketcher.Constraint("Vertical", 2))
sketch5.addConstraint(Sketcher.Constraint("Horizontal", 3))
sketch5.addConstraint(Sketcher.Constraint("Vertical", 4))
sketch5.addConstraint(Sketcher.Constraint("Horizontal", 5))
sketch5.addConstraint(Sketcher.Constraint("Vertical", 6))
sketch5.addConstraint(Sketcher.Constraint("Horizontal", 7))
sketch5.addConstraint(Sketcher.Constraint("Vertical", 8))
sketch5.addConstraint(Sketcher.Constraint("Horizontal", 9))
sketch5.addConstraint(Sketcher.Constraint("Vertical", 10))
sketch5.addConstraint(Sketcher.Constraint("Horizontal", 11))
sketch5.addConstraint(Sketcher.Constraint("Vertical", 12))
sketch5.addConstraint(Sketcher.Constraint("Horizontal", 13))
sketch5.addConstraint(Sketcher.Constraint("Vertical", 14))
sketch5.addConstraint(Sketcher.Constraint("Horizontal", 15))
sketch5.addConstraint(Sketcher.Constraint("Vertical", 16))
sketch5.addConstraint(Sketcher.Constraint("Horizontal", 17))
sketch5.addConstraint(Sketcher.Constraint("Vertical", 18))
sketch5.addConstraint(Sketcher.Constraint("Horizontal", 19))
sketch5.addConstraint(Sketcher.Constraint("Vertical", 20))
sketch5.addConstraint(Sketcher.Constraint("Horizontal", 21))
sketch5.addConstraint(Sketcher.Constraint("Vertical", 22))
sketch5.addConstraint(Sketcher.Constraint("Horizontal", 23))
sketch5.addConstraint(Sketcher.Constraint("Vertical", 24))
sketch5.addConstraint(Sketcher.Constraint("Horizontal", 25))
sketch5.addConstraint(Sketcher.Constraint("Vertical", 26))
sketch5.addConstraint(Sketcher.Constraint("Horizontal", 27))
sketch5.addConstraint(Sketcher.Constraint("Horizontal", 1, 2, 4, 2))
sketch5.addConstraint(Sketcher.Constraint("Horizontal", 3, 2, 6, 2))
sketch5.addConstraint(Sketcher.Constraint("Horizontal", 5, 2, 8, 2))
sketch5.addConstraint(Sketcher.Constraint("Horizontal", 7, 2, 10, 2))
sketch5.addConstraint(Sketcher.Constraint("Horizontal", 9, 2, 12, 2))
sketch5.addConstraint(Sketcher.Constraint("Horizontal", 11, 2, 14, 2))
sketch5.addConstraint(Sketcher.Constraint("Horizontal", 13, 2, 16, 2))
sketch5.addConstraint(Sketcher.Constraint("Horizontal", 15, 2, 18, 2))
sketch5.addConstraint(Sketcher.Constraint("Horizontal", 17, 2, 20, 2))
sketch5.addConstraint(Sketcher.Constraint("Horizontal", 19, 2, 22, 2))
sketch5.addConstraint(Sketcher.Constraint("Horizontal", 21, 2, 24, 2))
sketch5.addConstraint(Sketcher.Constraint("Horizontal", 23, 2, 26, 2))
sketch5.addConstraint(Sketcher.Constraint("Equal", 3, 5))
sketch5.addConstraint(Sketcher.Constraint("Equal", 7, 9))
sketch5.addConstraint(Sketcher.Constraint("Equal", 11, 13))
sketch5.addConstraint(Sketcher.Constraint("Equal", 15, 17))
sketch5.addConstraint(Sketcher.Constraint("Equal", 19, 21))
sketch5.addConstraint(Sketcher.Constraint("Equal", 23, 25))
sketch5.addConstraint(Sketcher.Constraint("DistanceX", 1, 2, 1, 1, 0.2))
sketch5.addConstraint(Sketcher.Constraint("DistanceY", 0, 2, 0, 1, 0.06))
sketch5.addConstraint(Sketcher.Constraint("DistanceX", -1, 1, 0, 2, 4.45))
sketch5.addConstraint(Sketcher.Constraint("DistanceY", 0, 2, -1, 1, 0.69))
sketch5.addConstraint(Sketcher.Constraint("DistanceX", -1, 1, 4, 2, 3.81))
sketch5.addConstraint(Sketcher.Constraint("DistanceX", -1, 1, 8, 2, 3.17))
sketch5.addConstraint(Sketcher.Constraint("DistanceX", -1, 1, 12, 2, 2.53))
sketch5.addConstraint(Sketcher.Constraint("DistanceX", -1, 1, 16, 2, 1.89))
sketch5.addConstraint(Sketcher.Constraint("DistanceX", -1, 1, 20, 2, 1.25))
sketch5.addConstraint(Sketcher.Constraint("DistanceX", -1, 1, 24, 2, 0.61))
sketch5.setExpression("Constraints[74]", "Params.sketch5_width")
sketch5.setExpression("Constraints[75]", "Params.sketch5_height")
pad4 = doc.addObject("PartDesign::Pad", "Pad003")
body.addObject(pad4)
pad4.Profile = sketch5
pad4.setExpression("Length", "Params.pad4_length")
pad4.Reversed = True

# Sketch on XY plane
sketch6 = doc.addObject("Sketcher::SketchObject", "Sketch005")
body.addObject(sketch6)
sketch6.AttachmentSupport = (doc.XY_Plane, [""])
sketch6.MapMode = "FlatFace"
sketch6.AttachmentOffset = App.Placement(V(0, 0, -0.54), App.Rotation())
add_polygon(sketch6, [(4.45, -1.9), (4.45, -1.96), (4.25, -1.96), (4.25, -1.9)])  # lines 0-3
add_polygon(sketch6, [(3.81, -1.9), (3.81, -1.96), (3.61, -1.96), (3.61, -1.9)])  # lines 4-7
add_polygon(sketch6, [(3.17, -1.9), (3.17, -1.96), (2.97, -1.96), (2.97, -1.9)])  # lines 8-11
add_polygon(sketch6, [(2.53, -1.9), (2.53, -1.96), (2.33, -1.96), (2.33, -1.9)])  # lines 12-15
add_polygon(sketch6, [(1.89, -1.9), (1.89, -1.96), (1.69, -1.96), (1.69, -1.9)])  # lines 16-19
add_polygon(sketch6, [(1.25, -1.9), (1.25, -1.96), (1.05, -1.96), (1.05, -1.9)])  # lines 20-23
add_polygon(sketch6, [(0.61, -1.9), (0.61, -1.96), (0.41, -1.96), (0.41, -1.9)])  # lines 24-27
sketch6.addConstraint(Sketcher.Constraint("Vertical", 0))
sketch6.addConstraint(Sketcher.Constraint("Horizontal", 1))
sketch6.addConstraint(Sketcher.Constraint("Vertical", 2))
sketch6.addConstraint(Sketcher.Constraint("Horizontal", 3))
sketch6.addConstraint(Sketcher.Constraint("Vertical", 4))
sketch6.addConstraint(Sketcher.Constraint("Horizontal", 5))
sketch6.addConstraint(Sketcher.Constraint("Vertical", 6))
sketch6.addConstraint(Sketcher.Constraint("Horizontal", 7))
sketch6.addConstraint(Sketcher.Constraint("Vertical", 8))
sketch6.addConstraint(Sketcher.Constraint("Horizontal", 9))
sketch6.addConstraint(Sketcher.Constraint("Vertical", 10))
sketch6.addConstraint(Sketcher.Constraint("Horizontal", 11))
sketch6.addConstraint(Sketcher.Constraint("Vertical", 12))
sketch6.addConstraint(Sketcher.Constraint("Horizontal", 13))
sketch6.addConstraint(Sketcher.Constraint("Vertical", 14))
sketch6.addConstraint(Sketcher.Constraint("Horizontal", 15))
sketch6.addConstraint(Sketcher.Constraint("Vertical", 16))
sketch6.addConstraint(Sketcher.Constraint("Horizontal", 17))
sketch6.addConstraint(Sketcher.Constraint("Vertical", 18))
sketch6.addConstraint(Sketcher.Constraint("Horizontal", 19))
sketch6.addConstraint(Sketcher.Constraint("Vertical", 20))
sketch6.addConstraint(Sketcher.Constraint("Horizontal", 21))
sketch6.addConstraint(Sketcher.Constraint("Vertical", 22))
sketch6.addConstraint(Sketcher.Constraint("Horizontal", 23))
sketch6.addConstraint(Sketcher.Constraint("Vertical", 24))
sketch6.addConstraint(Sketcher.Constraint("Horizontal", 25))
sketch6.addConstraint(Sketcher.Constraint("Vertical", 26))
sketch6.addConstraint(Sketcher.Constraint("Horizontal", 27))
sketch6.addConstraint(Sketcher.Constraint("Horizontal", 1, 2, 4, 2))
sketch6.addConstraint(Sketcher.Constraint("Horizontal", 3, 2, 6, 2))
sketch6.addConstraint(Sketcher.Constraint("Horizontal", 5, 2, 8, 2))
sketch6.addConstraint(Sketcher.Constraint("Horizontal", 7, 2, 10, 2))
sketch6.addConstraint(Sketcher.Constraint("Horizontal", 9, 2, 12, 2))
sketch6.addConstraint(Sketcher.Constraint("Horizontal", 11, 2, 14, 2))
sketch6.addConstraint(Sketcher.Constraint("Horizontal", 13, 2, 16, 2))
sketch6.addConstraint(Sketcher.Constraint("Horizontal", 15, 2, 18, 2))
sketch6.addConstraint(Sketcher.Constraint("Horizontal", 17, 2, 20, 2))
sketch6.addConstraint(Sketcher.Constraint("Horizontal", 19, 2, 22, 2))
sketch6.addConstraint(Sketcher.Constraint("Horizontal", 21, 2, 24, 2))
sketch6.addConstraint(Sketcher.Constraint("Horizontal", 23, 2, 26, 2))
sketch6.addConstraint(Sketcher.Constraint("Equal", 3, 5))
sketch6.addConstraint(Sketcher.Constraint("Equal", 7, 9))
sketch6.addConstraint(Sketcher.Constraint("Equal", 11, 13))
sketch6.addConstraint(Sketcher.Constraint("Equal", 15, 17))
sketch6.addConstraint(Sketcher.Constraint("Equal", 19, 21))
sketch6.addConstraint(Sketcher.Constraint("Equal", 23, 25))
sketch6.addConstraint(Sketcher.Constraint("DistanceX", 1, 2, 1, 1, 0.2))
sketch6.addConstraint(Sketcher.Constraint("DistanceY", 0, 2, 0, 1, 0.06))
sketch6.addConstraint(Sketcher.Constraint("DistanceY", 2, 2, -1, 1, 1.9))
sketch6.addConstraint(Sketcher.Constraint("DistanceX", -1, 1, 0, 2, 4.45))
sketch6.addConstraint(Sketcher.Constraint("DistanceX", -1, 1, 4, 2, 3.81))
sketch6.addConstraint(Sketcher.Constraint("DistanceX", -1, 1, 8, 2, 3.17))
sketch6.addConstraint(Sketcher.Constraint("DistanceX", -1, 1, 12, 2, 2.53))
sketch6.addConstraint(Sketcher.Constraint("DistanceX", -1, 1, 16, 2, 1.89))
sketch6.addConstraint(Sketcher.Constraint("DistanceX", -1, 1, 20, 2, 1.25))
sketch6.addConstraint(Sketcher.Constraint("DistanceX", -1, 1, 24, 2, 0.61))
sketch6.setExpression("Constraints[74]", "Params.sketch6_width")
sketch6.setExpression("Constraints[75]", "Params.sketch6_height")
pad5 = doc.addObject("PartDesign::Pad", "Pad004")
body.addObject(pad5)
pad5.Profile = sketch6
pad5.setExpression("Length", "Params.pad5_length")
pad5.Reversed = True

doc.recompute()
